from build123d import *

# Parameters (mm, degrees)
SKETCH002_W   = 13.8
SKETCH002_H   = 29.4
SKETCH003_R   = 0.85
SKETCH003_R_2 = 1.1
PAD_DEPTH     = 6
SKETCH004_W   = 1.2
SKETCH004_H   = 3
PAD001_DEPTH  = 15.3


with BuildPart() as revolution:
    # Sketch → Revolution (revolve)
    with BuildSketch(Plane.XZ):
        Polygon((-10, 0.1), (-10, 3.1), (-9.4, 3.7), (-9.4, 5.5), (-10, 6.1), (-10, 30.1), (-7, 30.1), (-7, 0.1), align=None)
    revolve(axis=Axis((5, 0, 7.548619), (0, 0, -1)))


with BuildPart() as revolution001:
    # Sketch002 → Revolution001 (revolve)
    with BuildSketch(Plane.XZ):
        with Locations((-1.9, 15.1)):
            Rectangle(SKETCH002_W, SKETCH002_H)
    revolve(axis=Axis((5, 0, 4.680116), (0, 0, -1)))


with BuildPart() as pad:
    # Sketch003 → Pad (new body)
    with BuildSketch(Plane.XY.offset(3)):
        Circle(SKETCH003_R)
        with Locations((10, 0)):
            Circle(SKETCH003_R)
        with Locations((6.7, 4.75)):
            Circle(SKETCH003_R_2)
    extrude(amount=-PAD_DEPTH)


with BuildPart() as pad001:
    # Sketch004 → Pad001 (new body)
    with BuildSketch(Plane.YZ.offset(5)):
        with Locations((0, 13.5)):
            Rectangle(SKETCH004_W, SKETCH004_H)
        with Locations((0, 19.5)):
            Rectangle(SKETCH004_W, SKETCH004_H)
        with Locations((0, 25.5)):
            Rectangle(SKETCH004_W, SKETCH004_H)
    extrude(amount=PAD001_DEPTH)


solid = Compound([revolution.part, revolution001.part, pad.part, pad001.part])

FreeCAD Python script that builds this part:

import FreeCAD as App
import Part
import Sketcher
Q = App.Units.Quantity


def add_polygon(sketch, points):
    """Adds a closed chain of lines whose ends are joined by coincident constraints."""
    first, n = sketch.GeometryCount, len(points)
    for a, b in zip(points, points[1:] + points[:1]):
        sketch.addGeometry(Part.LineSegment(App.Vector(*a, 0), App.Vector(*b, 0)), False)
    for i in range(n):
        sketch.addConstraint(Sketcher.Constraint("Coincident", first + i, 2, first + (i + 1) % n, 1))

doc = App.newDocument("Part")
body = doc.addObject("PartDesign::Body", "Body")

sketch1 = body.newObject("Sketcher::SketchObject", "Sketch")
sketch1.AttachmentSupport = (doc.getObject("XZ_Plane"), [""])
sketch1.MapMode = "FlatFace"
add_polygon(sketch1, [(-10, 3.1), (-10, 0.1), (-7, 0.1), (-7, 30.1), (-10, 30.1), (-10, 6.1), (-9.4, 5.5), (-9.4, 3.7)])
sketch1.addGeometry(Part.LineSegment(App.Vector(5, 30.1, 0), App.Vector(5, 0.1, 0)), True)
sketch1.addConstraint(Sketcher.Constraint("Vertical", 0))
sketch1.addConstraint(Sketcher.Constraint("Horizontal", 1))
sketch1.addConstraint(Sketcher.Constraint("Vertical", 2))
sketch1.addConstraint(Sketcher.Constraint("Horizontal", 3))
sketch1.addConstraint(Sketcher.Constraint("Vertical", 4))
sketch1.addConstraint(Sketcher.Constraint("Vertical", 6))
sketch1.addConstraint(Sketcher.Constraint("Vertical", 8))
sketch1.addConstraint(Sketcher.Constraint("Perpendicular", 5, 7))
sketch1.addConstraint(Sketcher.Constraint("Horizontal", 3, 2, 8, 1))
sketch1.addConstraint(Sketcher.Constraint("Horizontal", 1, 2, 8, 2))
sketch1.addConstraint(Sketcher.Constraint("Vertical", 0, 2, 3, 2))
sketch1.addConstraint(Sketcher.Constraint("Equal", 3, 0))
sketch1.addConstraint(Sketcher.Constraint("Equal", 5, 7))
sketch1.addConstraint(Sketcher.Constraint("DistanceX", 1, 1, 1, 2, Q("3 mm")))
sketch1.addConstraint(Sketcher.Constraint("DistanceY", 2, 1, 2, 2, Q("30 mm")))
sketch1.addConstraint(Sketcher.Constraint("DistanceY", 4, 2, 4, 1, Q("24 mm")))
sketch1.addConstraint(Sketcher.Constraint("DistanceY", 6, 2, 6, 1, Q("1.8 mm")))
sketch1.addConstraint(Sketcher.Constraint("DistanceX", 0, 2, -1, 1, Q("10 mm")))
sketch1.addConstraint(Sketcher.Constraint("DistanceX", -1, 1, 8, 1, Q("5 mm")))
sketch1.addConstraint(Sketcher.Constraint("DistanceY", -1, 1, 0, 2, Q("0.1 mm")))
revolution = body.newObject("PartDesign::Revolution", "Revolution")
revolution.Profile = sketch1
revolution.ReferenceAxis = (sketch1, ["Axis0"])
revolution.Angle = 360
body2 = doc.addObject("PartDesign::Body", "Body001")

sketch2 = body2.newObject("Sketcher::SketchObject", "Sketch001")
sketch2.AttachmentSupport = (doc.getObject("XZ_Plane001"), [""])
sketch2.MapMode = "FlatFace"
add_polygon(sketch2, [(-9, 30), (-9, 0), (5, 0), (5, 30)])
sketch2.addGeometry(Part.LineSegment(App.Vector(5, 30, 0), App.Vector(5, 0, 0)), True)
sketch2.addConstraint(Sketcher.Constraint("Vertical", 0))
sketch2.addConstraint(Sketcher.Constraint("Horizontal", 1))
sketch2.addConstraint(Sketcher.Constraint("Vertical", 2))
sketch2.addConstraint(Sketcher.Constraint("Horizontal", 3))
sketch2.addConstraint(Sketcher.Constraint("Vertical", 4))
sketch2.addConstraint(Sketcher.Constraint("Coincident", 4, 1, 2, 2))
sketch2.addConstraint(Sketcher.Constraint("Horizontal", 0, 2, 4, 2))
sketch2.addConstraint(Sketcher.Constraint("DistanceX", 1, 1, 1, 2, Q("13.8 mm")))
sketch2.addConstraint(Sketcher.Constraint("DistanceY", 0, 2, 0, 1, Q("29.4 mm")))
sketch2.addConstraint(Sketcher.Constraint("DistanceX", -1, 1, 1, 2, Q("5 mm")))
sketch2.addConstraint(Sketcher.Constraint("DistanceY", -1, 1, 0, 2, Q("0.4 mm")))
revolution2 = body2.newObject("PartDesign::Revolution", "Revolution001")
revolution2.Profile = sketch2
revolution2.ReferenceAxis = (sketch2, ["Axis0"])
revolution2.Angle = 360
body3 = doc.addObject("PartDesign::Body", "Body002")
body3.AllowCompound = True

sketch3 = body3.newObject("Sketcher::SketchObject", "Sketch002")
sketch3.AttachmentSupport = (doc.getObject("XY_Plane002"), [""])
sketch3.MapMode = "FlatFace"
sketch3.AttachmentOffset = App.Placement(App.Vector(0, 0, 3), App.Rotation())
sketch3.addGeometry(Part.Circle(App.Vector(0, 0, 0), App.Vector(0, 0, 1), 0.8), False)
sketch3.addGeometry(Part.Circle(App.Vector(10, 0, 0), App.Vector(0, 0, 1), 0.8), False)
sketch3.addGeometry(Part.Circle(App.Vector(6.7, 4.8, 0), App.Vector(0, 0, 1), 1.1), False)
sketch3.addConstraint(Sketcher.Constraint("Coincident", 0, 3, -1, 1))
sketch3.addConstraint(Sketcher.Constraint("Equal", 0, 1))
sketch3.addConstraint(Sketcher.Constraint("PointOnObject", 1, 3, -1))
sketch3.addConstraint(Sketcher.Constraint("Diameter", 0, Q("1.7 mm")))
sketch3.addConstraint(Sketcher.Constraint("Diameter", 2, Q("2.2 mm")))
sketch3.addConstraint(Sketcher.Constraint("DistanceX", -1, 1, 1, 3, Q("10 mm")))
sketch3.addConstraint(Sketcher.Constraint("DistanceX", -1, 1, 2, 3, Q("6.7 mm")))
sketch3.addConstraint(Sketcher.Constraint("DistanceY", -1, 1, 2, 3, Q("4.75 mm")))
pad1 = body3.newObject("PartDesign::Pad", "Pad")
pad1.Profile = sketch3
pad1.Length = 6
pad1.Reversed = True
body4 = doc.addObject("PartDesign::Body", "Body003")
body4.AllowCompound = True

sketch4 = body4.newObject("Sketcher::SketchObject", "Sketch003")
sketch4.AttachmentSupport = (doc.getObject("YZ_Plane003"), [""])
sketch4.MapMode = "FlatFace"
sketch4.AttachmentOffset = App.Placement(App.Vector(0, 0, 5), App.Rotation())
add_polygon(sketch4, [(-0.6, 15), (-0.6, 12), (0.6, 12), (0.6, 15)])
add_polygon(sketch4, [(-0.6, 21), (-0.6, 18), (0.6, 18), (0.6, 21)])
add_polygon(sketch4, [(-0.6, 27), (-0.6, 24), (0.6, 24), (0.6, 27)])
sketch4.addConstraint(Sketcher.Constraint("Vertical", 0))
sketch4.addConstraint(Sketcher.Constraint("Horizontal", 1))
sketch4.addConstraint(Sketcher.Constraint("Vertical", 2))
sketch4.addConstraint(Sketcher.Constraint("Horizontal", 3))
sketch4.addConstraint(Sketcher.Constraint("Vertical", 4))
sketch4.addConstraint(Sketcher.Constraint("Horizontal", 5))
sketch4.addConstraint(Sketcher.Constraint("Vertical", 6))
sketch4.addConstraint(Sketcher.Constraint("Horizontal", 7))
sketch4.addConstraint(Sketcher.Constraint("Vertical", 8))
sketch4.addConstraint(Sketcher.Constraint("Horizontal", 9))
sketch4.addConstraint(Sketcher.Constraint("Vertical", 10))
sketch4.addConstraint(Sketcher.Constraint("Horizontal", 11))
sketch4.addConstraint(Sketcher.Constraint("Vertical", 3, 2, 4, 2))
sketch4.addConstraint(Sketcher.Constraint("Vertical", 2, 2, 5, 2))
sketch4.addConstraint(Sketcher.Constraint("Vertical", 7, 2, 8, 2))
sketch4.addConstraint(Sketcher.Constraint("Vertical", 6, 2, 9, 2))
sketch4.addConstraint(Sketcher.Constraint("Equal", 2, 4))
sketch4.addConstraint(Sketcher.Constraint("Equal", 6, 8))
sketch4.addConstraint(Sketcher.Constraint("DistanceY", 0, 2, 0, 1, Q("3 mm")))
sketch4.addConstraint(Sketcher.Constraint("DistanceX", 1, 1, 1, 2, Q("1.2 mm")))
sketch4.addConstraint(Sketcher.Constraint("DistanceY", -1, 1, 0, 2, Q("12 mm")))
sketch4.addConstraint(Sketcher.Constraint("DistanceY", -1, 1, 4, 2, Q("18 mm")))
sketch4.addConstraint(Sketcher.Constraint("DistanceY", -1, 1, 8, 2, Q("24 mm")))
sketch4.addConstraint(Sketcher.Constraint("DistanceX", 0, 2, -1, 1, Q("0.6 mm")))
pad2 = body4.newObject("PartDesign::Pad", "Pad001")
pad2.Profile = sketch4
pad2.Length = 15.3

doc.recompute()
